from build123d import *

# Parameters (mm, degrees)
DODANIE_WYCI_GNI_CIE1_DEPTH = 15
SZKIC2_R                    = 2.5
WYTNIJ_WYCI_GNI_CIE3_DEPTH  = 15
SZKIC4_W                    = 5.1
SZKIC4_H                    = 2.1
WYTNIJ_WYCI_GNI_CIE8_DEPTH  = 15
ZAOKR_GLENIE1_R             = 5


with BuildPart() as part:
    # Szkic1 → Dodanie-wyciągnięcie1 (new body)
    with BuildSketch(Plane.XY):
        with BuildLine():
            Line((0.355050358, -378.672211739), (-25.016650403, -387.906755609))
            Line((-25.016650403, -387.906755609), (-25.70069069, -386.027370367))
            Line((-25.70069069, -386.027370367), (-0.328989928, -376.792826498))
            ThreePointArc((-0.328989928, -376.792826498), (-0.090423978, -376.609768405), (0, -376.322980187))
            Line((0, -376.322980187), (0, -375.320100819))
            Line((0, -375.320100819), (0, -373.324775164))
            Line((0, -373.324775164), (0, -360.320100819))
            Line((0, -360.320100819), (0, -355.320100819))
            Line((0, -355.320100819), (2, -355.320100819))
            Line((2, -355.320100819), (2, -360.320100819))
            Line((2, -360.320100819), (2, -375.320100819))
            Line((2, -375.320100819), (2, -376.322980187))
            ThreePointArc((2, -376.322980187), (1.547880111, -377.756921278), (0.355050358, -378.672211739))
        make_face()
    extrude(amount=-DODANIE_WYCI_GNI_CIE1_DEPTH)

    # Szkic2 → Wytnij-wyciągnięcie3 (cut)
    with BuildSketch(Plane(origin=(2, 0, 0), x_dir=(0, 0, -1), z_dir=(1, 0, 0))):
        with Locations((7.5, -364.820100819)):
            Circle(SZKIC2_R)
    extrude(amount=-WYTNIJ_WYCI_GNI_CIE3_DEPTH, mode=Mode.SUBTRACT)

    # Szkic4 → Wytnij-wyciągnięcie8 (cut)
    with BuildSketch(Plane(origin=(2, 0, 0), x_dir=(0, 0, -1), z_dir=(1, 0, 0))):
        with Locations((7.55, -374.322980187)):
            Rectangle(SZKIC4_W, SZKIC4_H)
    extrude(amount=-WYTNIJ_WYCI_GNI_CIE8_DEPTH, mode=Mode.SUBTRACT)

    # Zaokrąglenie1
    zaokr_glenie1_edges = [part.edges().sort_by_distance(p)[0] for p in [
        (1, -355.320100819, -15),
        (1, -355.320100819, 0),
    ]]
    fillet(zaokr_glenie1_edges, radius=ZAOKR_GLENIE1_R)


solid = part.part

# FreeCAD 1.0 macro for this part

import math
import FreeCAD as App
import Part
import Sketcher
Q = App.Units.Quantity


def edges_at(feature, points):
    """Names of the edges that pass closest to the given points."""
    edges = feature.Shape.Edges
    near = lambda p: min(range(len(edges)), key=lambda i: edges[i].distToShape(Part.Vertex(*p))[0])
    return sorted({f"Edge{near(p) + 1}" for p in points})

doc = App.newDocument("Part")
params = doc.addObject("Spreadsheet::Sheet", "Params")
for row, (alias, value) in enumerate([
    ("sketch1_radius", "2.5 mm"),
    ("sketch1_radius2", "0.5 mm"),
    ("sketch1_length", "27 mm"),
    ("pad1_length", "15 mm"),
    ("sketch2_diameter", "5 mm"),
    ("pocket1_length", "15 mm"),
    ("sketch3_width", "2.1 mm"),
    ("sketch3_height", "5.1 mm"),
    ("pocket2_length", "15 mm"),
    ("fillet_radius", "5 mm"),
], start=1):
    params.set(f"A{row}", alias)
    params.set(f"B{row}", "=" + value)
    params.setAlias(f"B{row}", alias)

body = doc.addObject("PartDesign::Body", "Body")

sketch1 = body.newObject("Sketcher::SketchObject", "Sketch")
sketch1.AttachmentSupport = (doc.getObject("XY_Plane"), [""])
sketch1.MapMode = "FlatFace"
sketch1.addGeometry([
    Part.LineSegment(App.Vector(-25, -387.9, 0), App.Vector(0.4, -378.7, 0)),
    Part.ArcOfCircle(Part.Circle(App.Vector(-0.5, -376.3, 0), App.Vector(0, 0, 1), 2.5), math.radians(-70), math.radians(0)),
    Part.LineSegment(App.Vector(2, -376.3, 0), App.Vector(2, -355.3, 0)),
    Part.LineSegment(App.Vector(2, -355.3, 0), App.Vector(0, -355.3, 0)),
    Part.LineSegment(App.Vector(0, -355.3, 0), App.Vector(0, -376.3, 0)),
    Part.ArcOfCircle(Part.Circle(App.Vector(-0.5, -376.3, 0), App.Vector(0, 0, 1), 0.5), math.radians(-70), math.radians(0)),
    Part.LineSegment(App.Vector(-0.3, -376.8, 0), App.Vector(-25.7, -386, 0)),
    Part.LineSegment(App.Vector(-25.7, -386, 0), App.Vector(-25, -387.9, 0)),
], False)
sketch1.addConstraint([
    Sketcher.Constraint("Tangent", 0, 2, 1, 1),
    Sketcher.Constraint("Tangent", 1, 2, 2, 1),
    Sketcher.Constraint("Coincident", 2, 2, 3, 1),
    Sketcher.Constraint("Coincident", 3, 2, 4, 1),
    Sketcher.Constraint("Tangent", 4, 2, 5, 2),
    Sketcher.Constraint("Tangent", 5, 1, 6, 1),
    Sketcher.Constraint("Coincident", 6, 2, 7, 1),
    Sketcher.Constraint("Coincident", 7, 2, 0, 1),
    Sketcher.Constraint("Vertical", 2),
    Sketcher.Constraint("Horizontal", 3),
    Sketcher.Constraint("Vertical", 4),
    Sketcher.Constraint("Coincident", 5, 3, 1, 3),
    Sketcher.Constraint("PointOnObject", 3, 2, -2),
    Sketcher.Constraint("Parallel", 0, 6),
    Sketcher.Constraint("Perpendicular", 6, 7),
    Sketcher.Constraint("Radius", 1, 2.5),
    Sketcher.Constraint("Radius", 5, 0.5),
    Sketcher.Constraint("Angle", 0, Q("20 deg")),
    Sketcher.Constraint("Distance", 0, 27.0),
    Sketcher.Constraint("DistanceY", 2, 1, 2, 2, 21.002879),
    Sketcher.Constraint("DistanceY", 2, 2, -1, 1, 355.320101),
])
sketch1.setExpression("Constraints[15]", "Params.sketch1_radius")
sketch1.setExpression("Constraints[16]", "Params.sketch1_radius2")
sketch1.setExpression("Constraints[18]", "Params.sketch1_length")
pad1 = body.newObject("PartDesign::Pad", "Pad")
pad1.Profile = sketch1
pad1.setExpression("Length", "Params.pad1_length")
pad1.Reversed = True

sketch2 = body.newObject("Sketcher::SketchObject", "Sketch001")
sketch2.AttachmentSupport = (doc.getObject("YZ_Plane"), [""])
sketch2.MapMode = "FlatFace"
sketch2.AttachmentOffset = App.Placement(App.Vector(0, 0, 2), App.Rotation())
sketch2.addGeometry(Part.Circle(App.Vector(-364.8, -7.5, 0), App.Vector(0, 0, 1), 2.5), False)
sketch2.addConstraint([
    Sketcher.Constraint("Diameter", 0, 5.0),
    Sketcher.Constraint("DistanceY", 0, 3, -1, 1, 7.5),
    Sketcher.Constraint("DistanceX", 0, 3, -1, 1, 364.820101),
])
sketch2.setExpression("Constraints[0]", "Params.sketch2_diameter")
pocket1 = body.newObject("PartDesign::Pocket", "Pocket")
pocket1.Profile = sketch2
pocket1.setExpression("Length", "Params.pocket1_length")

sketch3 = body.newObject("Sketcher::SketchObject", "Sketch002")
sketch3.AttachmentSupport = (doc.getObject("YZ_Plane"), [""])
sketch3.MapMode = "FlatFace"
sketch3.AttachmentOffset = App.Placement(App.Vector(0, 0, 2), App.Rotation())
sketch3.addGeometry([
    Part.LineSegment(App.Vector(-373.3, -5, 0), App.Vector(-375.4, -5, 0)),
    Part.LineSegment(App.Vector(-375.4, -5, 0), App.Vector(-375.4, -10.1, 0)),
    Part.LineSegment(App.Vector(-375.4, -10.1, 0), App.Vector(-373.3, -10.1, 0)),
    Part.LineSegment(App.Vector(-373.3, -10.1, 0), App.Vector(-373.3, -5, 0)),
], False)
sketch3.addConstraint([
    Sketcher.Constraint("Coincident", 0, 2, 1, 1),
    Sketcher.Constraint("Coincident", 1, 2, 2, 1),
    Sketcher.Constraint("Coincident", 2, 2, 3, 1),
    Sketcher.Constraint("Coincident", 3, 2, 0, 1),
    Sketcher.Constraint("Horizontal", 0),
    Sketcher.Constraint("Vertical", 1),
    Sketcher.Constraint("Horizontal", 2),
    Sketcher.Constraint("Vertical", 3),
    Sketcher.Constraint("DistanceX", 0, 2, 0, 1, 2.1),
    Sketcher.Constraint("DistanceY", 1, 2, 1, 1, 5.1),
    Sketcher.Constraint("DistanceY", 0, 2, -1, 1, 5.0),
    Sketcher.Constraint("DistanceX", 0, 2, -1, 1, 375.37298),
])
sketch3.setExpression("Constraints[8]", "Params.sketch3_width")
sketch3.setExpression("Constraints[9]", "Params.sketch3_height")
pocket2 = body.newObject("PartDesign::Pocket", "Pocket001")
pocket2.Profile = sketch3
pocket2.setExpression("Length", "Params.pocket2_length")
doc.recompute()

fillet = body.newObject("PartDesign::Fillet", "Fillet")
fillet.Base = (pocket2, edges_at(pocket2, [(1, -355.32, -15), (1, -355.32, 0)]))
fillet.setExpression("Radius", "Params.fillet_radius")

doc.recompute()
